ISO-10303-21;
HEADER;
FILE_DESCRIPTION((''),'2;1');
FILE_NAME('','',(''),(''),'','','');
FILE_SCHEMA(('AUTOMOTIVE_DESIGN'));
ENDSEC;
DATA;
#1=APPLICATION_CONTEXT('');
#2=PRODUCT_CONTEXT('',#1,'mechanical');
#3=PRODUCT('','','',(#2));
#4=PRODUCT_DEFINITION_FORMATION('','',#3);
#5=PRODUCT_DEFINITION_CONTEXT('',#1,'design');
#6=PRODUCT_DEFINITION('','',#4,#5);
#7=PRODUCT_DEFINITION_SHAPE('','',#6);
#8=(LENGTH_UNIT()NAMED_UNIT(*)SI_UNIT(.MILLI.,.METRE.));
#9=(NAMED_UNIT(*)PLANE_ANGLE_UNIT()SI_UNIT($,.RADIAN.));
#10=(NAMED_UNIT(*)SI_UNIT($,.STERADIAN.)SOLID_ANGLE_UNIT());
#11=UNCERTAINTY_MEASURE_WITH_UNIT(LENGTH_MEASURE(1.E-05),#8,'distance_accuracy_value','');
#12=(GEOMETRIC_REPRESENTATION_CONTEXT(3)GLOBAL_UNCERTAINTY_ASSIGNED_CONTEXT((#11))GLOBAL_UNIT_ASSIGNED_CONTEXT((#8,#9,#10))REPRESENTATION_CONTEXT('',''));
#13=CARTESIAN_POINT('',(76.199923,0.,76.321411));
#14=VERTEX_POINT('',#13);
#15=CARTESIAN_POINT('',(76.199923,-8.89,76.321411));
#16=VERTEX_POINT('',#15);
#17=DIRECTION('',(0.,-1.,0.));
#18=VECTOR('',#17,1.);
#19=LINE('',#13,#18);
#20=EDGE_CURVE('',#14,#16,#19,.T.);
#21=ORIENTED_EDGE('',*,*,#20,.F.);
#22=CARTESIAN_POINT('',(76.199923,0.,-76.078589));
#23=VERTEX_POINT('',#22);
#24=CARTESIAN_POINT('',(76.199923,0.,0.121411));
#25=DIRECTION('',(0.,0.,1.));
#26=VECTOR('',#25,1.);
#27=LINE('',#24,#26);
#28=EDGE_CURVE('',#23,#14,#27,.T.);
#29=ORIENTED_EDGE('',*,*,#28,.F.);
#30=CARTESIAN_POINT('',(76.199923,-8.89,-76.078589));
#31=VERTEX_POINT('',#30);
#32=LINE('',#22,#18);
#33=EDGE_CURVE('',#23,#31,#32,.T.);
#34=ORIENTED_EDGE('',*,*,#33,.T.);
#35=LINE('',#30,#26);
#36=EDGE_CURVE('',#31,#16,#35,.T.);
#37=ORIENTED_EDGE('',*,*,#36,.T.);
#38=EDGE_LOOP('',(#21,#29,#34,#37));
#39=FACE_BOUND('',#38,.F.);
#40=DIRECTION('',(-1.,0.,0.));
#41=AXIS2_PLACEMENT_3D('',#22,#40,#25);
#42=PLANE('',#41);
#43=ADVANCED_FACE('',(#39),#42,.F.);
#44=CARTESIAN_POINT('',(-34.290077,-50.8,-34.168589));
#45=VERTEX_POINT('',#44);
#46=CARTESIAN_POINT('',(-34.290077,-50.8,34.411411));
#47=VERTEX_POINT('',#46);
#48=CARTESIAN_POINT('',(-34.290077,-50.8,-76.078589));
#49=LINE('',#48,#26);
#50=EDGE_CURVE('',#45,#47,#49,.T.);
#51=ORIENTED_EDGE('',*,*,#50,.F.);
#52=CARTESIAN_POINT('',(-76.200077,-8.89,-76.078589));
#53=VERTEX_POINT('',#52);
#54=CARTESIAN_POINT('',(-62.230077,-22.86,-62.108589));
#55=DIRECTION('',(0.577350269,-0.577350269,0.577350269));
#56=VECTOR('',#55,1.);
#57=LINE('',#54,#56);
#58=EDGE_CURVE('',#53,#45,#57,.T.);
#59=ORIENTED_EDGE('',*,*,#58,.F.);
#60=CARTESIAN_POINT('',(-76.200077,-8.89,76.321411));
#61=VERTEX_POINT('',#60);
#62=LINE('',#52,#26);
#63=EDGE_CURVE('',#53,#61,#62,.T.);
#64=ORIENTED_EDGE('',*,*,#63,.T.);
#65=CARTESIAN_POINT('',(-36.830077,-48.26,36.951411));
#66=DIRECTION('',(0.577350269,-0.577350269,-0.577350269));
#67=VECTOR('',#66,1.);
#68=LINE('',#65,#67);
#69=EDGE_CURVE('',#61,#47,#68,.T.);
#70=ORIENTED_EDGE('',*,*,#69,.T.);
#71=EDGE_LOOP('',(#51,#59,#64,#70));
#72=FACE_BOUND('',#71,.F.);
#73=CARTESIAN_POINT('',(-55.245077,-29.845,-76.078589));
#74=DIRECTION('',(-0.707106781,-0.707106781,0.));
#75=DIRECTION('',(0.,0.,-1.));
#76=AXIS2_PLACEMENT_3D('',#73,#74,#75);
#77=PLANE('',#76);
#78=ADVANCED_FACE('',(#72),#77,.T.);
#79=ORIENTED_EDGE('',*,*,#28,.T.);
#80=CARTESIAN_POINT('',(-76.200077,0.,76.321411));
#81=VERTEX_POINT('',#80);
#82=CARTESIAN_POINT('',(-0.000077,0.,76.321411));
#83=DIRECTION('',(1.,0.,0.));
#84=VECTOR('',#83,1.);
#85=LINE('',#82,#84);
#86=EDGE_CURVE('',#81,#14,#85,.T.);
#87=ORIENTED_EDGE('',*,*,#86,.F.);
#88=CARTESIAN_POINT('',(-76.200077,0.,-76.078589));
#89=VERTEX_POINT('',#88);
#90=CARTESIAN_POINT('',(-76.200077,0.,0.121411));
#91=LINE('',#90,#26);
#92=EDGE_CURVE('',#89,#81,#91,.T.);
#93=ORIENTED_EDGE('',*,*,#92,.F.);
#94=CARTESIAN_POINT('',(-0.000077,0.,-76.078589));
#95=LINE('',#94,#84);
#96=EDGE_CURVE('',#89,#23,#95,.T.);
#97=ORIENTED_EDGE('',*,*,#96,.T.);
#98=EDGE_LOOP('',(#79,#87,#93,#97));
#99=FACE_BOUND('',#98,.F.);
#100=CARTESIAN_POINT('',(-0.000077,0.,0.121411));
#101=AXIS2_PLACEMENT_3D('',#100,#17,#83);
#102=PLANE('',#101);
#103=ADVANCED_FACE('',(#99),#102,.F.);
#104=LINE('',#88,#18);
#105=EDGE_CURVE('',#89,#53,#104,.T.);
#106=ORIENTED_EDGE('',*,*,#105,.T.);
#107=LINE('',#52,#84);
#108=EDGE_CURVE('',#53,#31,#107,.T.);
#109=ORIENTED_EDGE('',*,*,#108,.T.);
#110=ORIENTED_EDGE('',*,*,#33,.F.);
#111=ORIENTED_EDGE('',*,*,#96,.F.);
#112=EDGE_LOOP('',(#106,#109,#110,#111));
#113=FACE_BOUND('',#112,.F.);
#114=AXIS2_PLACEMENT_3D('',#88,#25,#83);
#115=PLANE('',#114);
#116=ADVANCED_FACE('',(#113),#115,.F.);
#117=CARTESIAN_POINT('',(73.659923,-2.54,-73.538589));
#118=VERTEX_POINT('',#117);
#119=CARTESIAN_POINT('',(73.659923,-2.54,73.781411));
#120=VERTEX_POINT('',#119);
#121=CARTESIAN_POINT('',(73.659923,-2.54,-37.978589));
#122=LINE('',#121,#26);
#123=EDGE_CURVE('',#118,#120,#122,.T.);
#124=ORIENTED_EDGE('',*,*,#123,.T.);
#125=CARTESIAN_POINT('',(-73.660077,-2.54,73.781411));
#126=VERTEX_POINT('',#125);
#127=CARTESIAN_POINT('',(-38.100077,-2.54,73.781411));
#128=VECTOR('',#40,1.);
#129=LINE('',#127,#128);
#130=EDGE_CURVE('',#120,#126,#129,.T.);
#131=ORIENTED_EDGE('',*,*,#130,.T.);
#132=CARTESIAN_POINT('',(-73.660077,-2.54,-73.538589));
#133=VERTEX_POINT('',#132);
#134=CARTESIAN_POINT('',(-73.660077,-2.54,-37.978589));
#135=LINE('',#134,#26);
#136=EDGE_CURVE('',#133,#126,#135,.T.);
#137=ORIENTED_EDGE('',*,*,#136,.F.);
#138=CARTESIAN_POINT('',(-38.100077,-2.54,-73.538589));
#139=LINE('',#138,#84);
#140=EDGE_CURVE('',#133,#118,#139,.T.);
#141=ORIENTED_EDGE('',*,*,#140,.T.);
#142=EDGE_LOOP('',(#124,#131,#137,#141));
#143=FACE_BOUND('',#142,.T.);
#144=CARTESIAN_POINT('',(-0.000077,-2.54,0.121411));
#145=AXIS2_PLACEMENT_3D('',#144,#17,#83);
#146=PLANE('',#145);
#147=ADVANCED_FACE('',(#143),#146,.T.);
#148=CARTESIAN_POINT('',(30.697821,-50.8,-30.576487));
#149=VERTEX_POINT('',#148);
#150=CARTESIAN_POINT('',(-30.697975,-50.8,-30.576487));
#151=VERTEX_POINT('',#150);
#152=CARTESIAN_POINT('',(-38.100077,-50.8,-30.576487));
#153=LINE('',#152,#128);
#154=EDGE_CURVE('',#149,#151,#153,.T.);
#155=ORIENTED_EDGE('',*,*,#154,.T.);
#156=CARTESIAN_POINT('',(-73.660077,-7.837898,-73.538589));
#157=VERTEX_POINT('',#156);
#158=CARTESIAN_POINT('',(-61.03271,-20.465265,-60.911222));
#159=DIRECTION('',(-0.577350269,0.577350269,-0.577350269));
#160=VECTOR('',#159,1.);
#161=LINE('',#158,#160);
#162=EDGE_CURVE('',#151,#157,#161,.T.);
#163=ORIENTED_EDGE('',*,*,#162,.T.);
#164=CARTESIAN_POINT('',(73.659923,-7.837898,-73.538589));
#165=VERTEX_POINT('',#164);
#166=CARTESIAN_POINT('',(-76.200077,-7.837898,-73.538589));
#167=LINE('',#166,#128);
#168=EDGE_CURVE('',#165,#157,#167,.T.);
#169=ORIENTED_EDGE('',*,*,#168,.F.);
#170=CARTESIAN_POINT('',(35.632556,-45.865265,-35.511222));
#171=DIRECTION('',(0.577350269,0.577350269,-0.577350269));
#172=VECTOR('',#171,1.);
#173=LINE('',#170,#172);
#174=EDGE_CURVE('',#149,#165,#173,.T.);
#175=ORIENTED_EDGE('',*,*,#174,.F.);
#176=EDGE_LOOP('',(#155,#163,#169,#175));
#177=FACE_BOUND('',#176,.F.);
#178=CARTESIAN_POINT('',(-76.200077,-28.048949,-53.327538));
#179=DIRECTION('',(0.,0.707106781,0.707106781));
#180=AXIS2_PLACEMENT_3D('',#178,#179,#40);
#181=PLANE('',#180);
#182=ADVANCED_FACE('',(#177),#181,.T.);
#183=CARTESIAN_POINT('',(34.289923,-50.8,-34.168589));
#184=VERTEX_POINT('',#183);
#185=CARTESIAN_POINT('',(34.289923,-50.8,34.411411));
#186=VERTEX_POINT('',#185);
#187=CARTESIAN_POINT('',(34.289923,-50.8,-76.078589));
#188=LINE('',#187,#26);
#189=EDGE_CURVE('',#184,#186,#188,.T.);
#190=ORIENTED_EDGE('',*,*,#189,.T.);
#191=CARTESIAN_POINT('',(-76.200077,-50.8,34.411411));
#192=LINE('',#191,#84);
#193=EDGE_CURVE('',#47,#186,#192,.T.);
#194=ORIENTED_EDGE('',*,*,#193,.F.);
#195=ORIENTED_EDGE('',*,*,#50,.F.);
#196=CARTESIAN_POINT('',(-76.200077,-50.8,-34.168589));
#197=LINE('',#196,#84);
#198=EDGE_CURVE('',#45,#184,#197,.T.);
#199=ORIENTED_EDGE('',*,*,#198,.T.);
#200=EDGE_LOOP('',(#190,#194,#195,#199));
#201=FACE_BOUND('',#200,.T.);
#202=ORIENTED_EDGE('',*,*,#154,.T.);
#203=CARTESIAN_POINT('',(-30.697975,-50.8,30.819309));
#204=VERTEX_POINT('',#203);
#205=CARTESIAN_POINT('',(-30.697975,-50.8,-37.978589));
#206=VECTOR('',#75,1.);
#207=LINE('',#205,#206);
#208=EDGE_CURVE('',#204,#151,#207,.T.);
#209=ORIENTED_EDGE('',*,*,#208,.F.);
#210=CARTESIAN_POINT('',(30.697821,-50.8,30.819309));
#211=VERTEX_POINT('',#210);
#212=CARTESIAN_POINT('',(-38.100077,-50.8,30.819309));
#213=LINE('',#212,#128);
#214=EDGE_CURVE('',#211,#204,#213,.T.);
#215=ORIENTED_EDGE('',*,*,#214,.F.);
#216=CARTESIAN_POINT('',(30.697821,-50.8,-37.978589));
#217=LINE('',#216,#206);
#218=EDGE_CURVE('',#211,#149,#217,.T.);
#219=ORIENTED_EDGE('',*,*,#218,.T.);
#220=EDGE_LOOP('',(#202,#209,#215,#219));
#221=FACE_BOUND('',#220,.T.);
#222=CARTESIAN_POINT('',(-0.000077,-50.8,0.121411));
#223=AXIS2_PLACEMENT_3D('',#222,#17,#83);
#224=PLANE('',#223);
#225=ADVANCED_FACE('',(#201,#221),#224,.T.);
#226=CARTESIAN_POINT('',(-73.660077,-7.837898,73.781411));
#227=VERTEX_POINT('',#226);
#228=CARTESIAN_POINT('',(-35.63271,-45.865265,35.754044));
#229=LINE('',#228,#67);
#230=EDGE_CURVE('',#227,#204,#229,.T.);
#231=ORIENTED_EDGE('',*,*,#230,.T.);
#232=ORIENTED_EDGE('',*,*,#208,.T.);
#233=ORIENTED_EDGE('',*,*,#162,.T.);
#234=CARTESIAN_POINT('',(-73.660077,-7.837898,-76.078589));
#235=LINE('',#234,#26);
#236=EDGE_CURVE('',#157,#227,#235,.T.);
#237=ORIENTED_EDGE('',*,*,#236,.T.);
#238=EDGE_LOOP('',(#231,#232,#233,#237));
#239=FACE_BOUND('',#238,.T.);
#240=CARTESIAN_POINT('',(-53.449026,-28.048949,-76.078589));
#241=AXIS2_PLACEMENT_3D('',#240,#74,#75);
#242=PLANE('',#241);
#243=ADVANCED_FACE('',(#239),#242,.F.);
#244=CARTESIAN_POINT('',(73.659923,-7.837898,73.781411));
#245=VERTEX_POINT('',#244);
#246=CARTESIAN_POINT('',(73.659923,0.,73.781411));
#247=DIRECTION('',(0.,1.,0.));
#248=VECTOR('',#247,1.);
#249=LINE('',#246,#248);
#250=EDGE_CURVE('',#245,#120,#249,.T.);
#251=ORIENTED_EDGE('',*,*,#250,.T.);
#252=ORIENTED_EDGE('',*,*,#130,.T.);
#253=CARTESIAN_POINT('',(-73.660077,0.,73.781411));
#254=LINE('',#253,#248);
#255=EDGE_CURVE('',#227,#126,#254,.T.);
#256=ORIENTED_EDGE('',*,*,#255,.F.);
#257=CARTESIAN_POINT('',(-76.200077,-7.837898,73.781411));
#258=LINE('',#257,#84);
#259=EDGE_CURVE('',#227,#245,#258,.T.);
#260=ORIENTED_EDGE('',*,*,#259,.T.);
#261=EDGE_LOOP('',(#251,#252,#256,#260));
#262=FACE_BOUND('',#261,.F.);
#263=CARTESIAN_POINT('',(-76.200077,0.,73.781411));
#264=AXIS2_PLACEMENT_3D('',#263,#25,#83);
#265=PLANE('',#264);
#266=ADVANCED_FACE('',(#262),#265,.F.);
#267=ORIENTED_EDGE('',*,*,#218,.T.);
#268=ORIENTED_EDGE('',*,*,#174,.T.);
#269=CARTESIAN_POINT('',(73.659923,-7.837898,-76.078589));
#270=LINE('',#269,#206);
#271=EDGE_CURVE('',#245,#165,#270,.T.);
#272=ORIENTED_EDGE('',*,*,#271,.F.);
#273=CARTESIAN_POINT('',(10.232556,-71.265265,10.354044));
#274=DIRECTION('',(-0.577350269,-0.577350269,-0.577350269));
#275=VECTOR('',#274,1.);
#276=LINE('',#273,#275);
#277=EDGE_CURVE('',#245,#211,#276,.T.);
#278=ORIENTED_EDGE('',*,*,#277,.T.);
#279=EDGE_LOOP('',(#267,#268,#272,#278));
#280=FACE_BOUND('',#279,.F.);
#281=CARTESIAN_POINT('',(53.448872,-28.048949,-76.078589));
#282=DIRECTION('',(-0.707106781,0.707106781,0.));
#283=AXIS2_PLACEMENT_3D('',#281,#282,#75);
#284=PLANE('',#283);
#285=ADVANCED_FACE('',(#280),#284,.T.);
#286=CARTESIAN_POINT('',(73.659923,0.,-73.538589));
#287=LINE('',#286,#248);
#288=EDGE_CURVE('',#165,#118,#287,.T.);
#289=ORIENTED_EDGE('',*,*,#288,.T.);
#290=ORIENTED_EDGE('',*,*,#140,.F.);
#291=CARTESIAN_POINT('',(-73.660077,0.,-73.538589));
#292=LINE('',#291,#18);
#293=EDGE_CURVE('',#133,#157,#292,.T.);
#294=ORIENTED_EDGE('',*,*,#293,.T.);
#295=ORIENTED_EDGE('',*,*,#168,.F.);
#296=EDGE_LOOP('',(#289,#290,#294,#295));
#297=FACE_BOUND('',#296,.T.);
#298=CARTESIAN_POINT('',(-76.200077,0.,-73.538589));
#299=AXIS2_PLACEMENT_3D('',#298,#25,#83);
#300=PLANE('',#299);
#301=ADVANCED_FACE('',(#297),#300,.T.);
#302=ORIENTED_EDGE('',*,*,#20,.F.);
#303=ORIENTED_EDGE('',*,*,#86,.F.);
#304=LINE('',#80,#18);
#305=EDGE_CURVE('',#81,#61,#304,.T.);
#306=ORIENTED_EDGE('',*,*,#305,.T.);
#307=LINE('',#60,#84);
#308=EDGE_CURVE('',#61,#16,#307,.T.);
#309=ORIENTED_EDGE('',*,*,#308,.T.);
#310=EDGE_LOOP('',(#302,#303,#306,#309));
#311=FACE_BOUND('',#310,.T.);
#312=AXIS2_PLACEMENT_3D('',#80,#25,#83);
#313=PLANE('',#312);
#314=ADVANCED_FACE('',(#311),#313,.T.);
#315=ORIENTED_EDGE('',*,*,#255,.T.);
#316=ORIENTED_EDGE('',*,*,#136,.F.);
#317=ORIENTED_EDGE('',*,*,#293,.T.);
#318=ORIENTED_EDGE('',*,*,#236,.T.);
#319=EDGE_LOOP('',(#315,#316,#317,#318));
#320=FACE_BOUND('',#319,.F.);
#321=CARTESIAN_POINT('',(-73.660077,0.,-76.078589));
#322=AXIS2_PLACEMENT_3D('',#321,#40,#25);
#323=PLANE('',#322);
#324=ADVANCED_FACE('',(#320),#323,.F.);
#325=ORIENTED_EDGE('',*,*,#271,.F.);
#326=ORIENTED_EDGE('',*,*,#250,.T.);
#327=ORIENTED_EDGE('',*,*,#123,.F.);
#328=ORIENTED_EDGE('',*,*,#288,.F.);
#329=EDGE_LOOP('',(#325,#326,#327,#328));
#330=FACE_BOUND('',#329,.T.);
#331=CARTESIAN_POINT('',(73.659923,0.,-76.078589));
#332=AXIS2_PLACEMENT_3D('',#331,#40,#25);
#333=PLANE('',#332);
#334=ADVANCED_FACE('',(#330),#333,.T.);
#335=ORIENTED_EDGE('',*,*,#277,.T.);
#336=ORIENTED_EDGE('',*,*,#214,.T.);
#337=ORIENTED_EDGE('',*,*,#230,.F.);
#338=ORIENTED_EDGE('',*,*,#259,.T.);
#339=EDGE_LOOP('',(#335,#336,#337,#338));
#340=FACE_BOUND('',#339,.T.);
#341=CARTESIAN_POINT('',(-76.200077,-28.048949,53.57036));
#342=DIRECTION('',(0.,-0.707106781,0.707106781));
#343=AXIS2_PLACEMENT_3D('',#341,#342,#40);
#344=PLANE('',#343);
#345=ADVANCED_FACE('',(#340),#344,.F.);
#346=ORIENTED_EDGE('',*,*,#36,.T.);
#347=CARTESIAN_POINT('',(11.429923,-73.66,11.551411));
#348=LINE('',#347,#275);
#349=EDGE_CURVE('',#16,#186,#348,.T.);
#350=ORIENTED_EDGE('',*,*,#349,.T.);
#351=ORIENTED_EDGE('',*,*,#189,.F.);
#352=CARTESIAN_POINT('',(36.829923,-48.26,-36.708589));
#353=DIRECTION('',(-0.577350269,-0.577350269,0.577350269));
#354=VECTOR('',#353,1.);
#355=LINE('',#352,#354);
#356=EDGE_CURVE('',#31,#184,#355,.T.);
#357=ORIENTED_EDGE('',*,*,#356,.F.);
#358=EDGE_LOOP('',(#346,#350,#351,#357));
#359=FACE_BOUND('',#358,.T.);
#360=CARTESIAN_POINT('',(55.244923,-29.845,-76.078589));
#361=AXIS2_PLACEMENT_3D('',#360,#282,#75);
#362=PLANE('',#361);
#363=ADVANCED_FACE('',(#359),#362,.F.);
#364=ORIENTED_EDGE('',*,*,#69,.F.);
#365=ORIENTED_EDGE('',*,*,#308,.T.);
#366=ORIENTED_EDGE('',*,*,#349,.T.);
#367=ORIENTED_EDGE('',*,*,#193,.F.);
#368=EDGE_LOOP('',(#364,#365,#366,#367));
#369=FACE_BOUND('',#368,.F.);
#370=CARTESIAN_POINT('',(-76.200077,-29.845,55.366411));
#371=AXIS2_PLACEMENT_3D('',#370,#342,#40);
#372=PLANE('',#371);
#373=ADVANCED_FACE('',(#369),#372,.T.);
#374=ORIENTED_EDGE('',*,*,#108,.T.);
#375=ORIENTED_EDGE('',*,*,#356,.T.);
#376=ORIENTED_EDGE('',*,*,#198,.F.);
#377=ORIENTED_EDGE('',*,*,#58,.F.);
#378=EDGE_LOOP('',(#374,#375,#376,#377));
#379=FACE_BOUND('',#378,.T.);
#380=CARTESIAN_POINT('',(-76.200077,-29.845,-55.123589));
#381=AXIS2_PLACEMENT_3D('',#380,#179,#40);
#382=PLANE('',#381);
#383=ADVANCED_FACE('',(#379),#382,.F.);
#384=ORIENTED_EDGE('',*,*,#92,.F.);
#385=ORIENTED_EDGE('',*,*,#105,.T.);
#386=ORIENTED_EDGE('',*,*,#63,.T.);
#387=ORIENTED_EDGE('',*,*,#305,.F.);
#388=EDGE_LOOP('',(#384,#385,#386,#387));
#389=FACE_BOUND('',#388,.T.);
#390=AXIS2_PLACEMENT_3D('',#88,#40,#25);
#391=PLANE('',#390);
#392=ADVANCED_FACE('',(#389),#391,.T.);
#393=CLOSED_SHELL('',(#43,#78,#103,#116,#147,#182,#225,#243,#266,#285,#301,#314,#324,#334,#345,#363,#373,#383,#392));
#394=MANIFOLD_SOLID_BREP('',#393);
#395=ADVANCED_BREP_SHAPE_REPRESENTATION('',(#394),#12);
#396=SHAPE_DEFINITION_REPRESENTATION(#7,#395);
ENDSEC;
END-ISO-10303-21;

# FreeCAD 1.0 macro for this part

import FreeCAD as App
import Part
import Sketcher
from FreeCAD import Vector
Q = App.Units.Quantity


def edges_at(feature, points):
    """Names of the edges that pass closest to the given points."""
    edges = feature.Shape.Edges
    near = lambda p: min(range(len(edges)), key=lambda i: edges[i].distToShape(Part.Vertex(*p))[0])
    return sorted({f"Edge{near(p) + 1}" for p in points})


def faces_at(feature, points):
    """Names of the faces that lie closest to the given points."""
    faces = feature.Shape.Faces
    near = lambda p: min(range(len(faces)), key=lambda i: faces[i].distToShape(Part.Vertex(*p))[0])
    return sorted({f"Face{near(p) + 1}" for p in points})


def add_polygon(sketch, points):
    """Adds a closed chain of lines whose ends are joined by coincident constraints."""
    first, n = sketch.GeometryCount, len(points)
    for a, b in zip(points, points[1:] + points[:1]):
        sketch.addGeometry(Part.LineSegment(App.Vector(*a, 0), App.Vector(*b, 0)), False)
    for i in range(n):
        sketch.addConstraint(Sketcher.Constraint("Coincident", first + i, 2, first + (i + 1) % n, 1))

doc = App.newDocument("Part")
params = doc.addObject("Spreadsheet::Sheet", "Params")
for row, (alias, value) in enumerate([
    ("sketch1_width", "6 in"),
    ("pad1_length", "2 in"),
    ("chamfer_size", "1.65 in"),
    ("thickness_wall", "0.1 in"),
], start=1):
    params.set(f"A{row}", alias)
    params.set(f"B{row}", "=" + value)
    params.setAlias(f"B{row}", alias)

body = doc.addObject("PartDesign::Body", "Body")

# Sketch on XZ plane
sketch1 = body.newObject("Sketcher::SketchObject", "Sketch")
sketch1.AttachmentSupport = (doc.getObject("XZ_Plane"), [""])
sketch1.MapMode = "FlatFace"
add_polygon(sketch1, [(-76, 76), (-76, -76), (76, -76), (76, 76)])  # lines 0-3
sketch1.addConstraint(Sketcher.Constraint("Vertical", 0))
sketch1.addConstraint(Sketcher.Constraint("Horizontal", 1))
sketch1.addConstraint(Sketcher.Constraint("Vertical", 2))
sketch1.addConstraint(Sketcher.Constraint("Horizontal", 3))
sketch1.addConstraint(Sketcher.Constraint("Equal", 3, 0))
sketch1.addConstraint(Sketcher.Constraint("DistanceX", 1, 1, 1, 2, Q("6 in")))
sketch1.addConstraint(Sketcher.Constraint("DistanceY", 0, 2, -1, 1, Q("76.078589 mm")))
sketch1.addConstraint(Sketcher.Constraint("DistanceX", 0, 2, -1, 1, Q("76.200077 mm")))
sketch1.setExpression("Constraints[9]", "Params.sketch1_width")
pad1 = body.newObject("PartDesign::Pad", "Pad")
pad1.Profile = sketch1
pad1.setExpression("Length", "Params.pad1_length")
doc.recompute()

chamfer = body.newObject("PartDesign::Chamfer", "Chamfer")
chamfer.Base = (pad1, edges_at(pad1, [
    (0, -50.8, 76.321),
    (-76.2, -50.8, 0.121),
    (0, -50.8, -76.079),
    (76.2, -50.8, 0.121),
]))
chamfer.setExpression("Size", "Params.chamfer_size")
doc.recompute()

thickness = body.newObject("PartDesign::Thickness", "Thickness")
thickness.Base = (chamfer, faces_at(chamfer, [(0, -50.8, 0.121)]))
thickness.setExpression("Value", "Params.thickness_wall")
thickness.Reversed = True
thickness.Join = "Arc"

doc.recompute()
